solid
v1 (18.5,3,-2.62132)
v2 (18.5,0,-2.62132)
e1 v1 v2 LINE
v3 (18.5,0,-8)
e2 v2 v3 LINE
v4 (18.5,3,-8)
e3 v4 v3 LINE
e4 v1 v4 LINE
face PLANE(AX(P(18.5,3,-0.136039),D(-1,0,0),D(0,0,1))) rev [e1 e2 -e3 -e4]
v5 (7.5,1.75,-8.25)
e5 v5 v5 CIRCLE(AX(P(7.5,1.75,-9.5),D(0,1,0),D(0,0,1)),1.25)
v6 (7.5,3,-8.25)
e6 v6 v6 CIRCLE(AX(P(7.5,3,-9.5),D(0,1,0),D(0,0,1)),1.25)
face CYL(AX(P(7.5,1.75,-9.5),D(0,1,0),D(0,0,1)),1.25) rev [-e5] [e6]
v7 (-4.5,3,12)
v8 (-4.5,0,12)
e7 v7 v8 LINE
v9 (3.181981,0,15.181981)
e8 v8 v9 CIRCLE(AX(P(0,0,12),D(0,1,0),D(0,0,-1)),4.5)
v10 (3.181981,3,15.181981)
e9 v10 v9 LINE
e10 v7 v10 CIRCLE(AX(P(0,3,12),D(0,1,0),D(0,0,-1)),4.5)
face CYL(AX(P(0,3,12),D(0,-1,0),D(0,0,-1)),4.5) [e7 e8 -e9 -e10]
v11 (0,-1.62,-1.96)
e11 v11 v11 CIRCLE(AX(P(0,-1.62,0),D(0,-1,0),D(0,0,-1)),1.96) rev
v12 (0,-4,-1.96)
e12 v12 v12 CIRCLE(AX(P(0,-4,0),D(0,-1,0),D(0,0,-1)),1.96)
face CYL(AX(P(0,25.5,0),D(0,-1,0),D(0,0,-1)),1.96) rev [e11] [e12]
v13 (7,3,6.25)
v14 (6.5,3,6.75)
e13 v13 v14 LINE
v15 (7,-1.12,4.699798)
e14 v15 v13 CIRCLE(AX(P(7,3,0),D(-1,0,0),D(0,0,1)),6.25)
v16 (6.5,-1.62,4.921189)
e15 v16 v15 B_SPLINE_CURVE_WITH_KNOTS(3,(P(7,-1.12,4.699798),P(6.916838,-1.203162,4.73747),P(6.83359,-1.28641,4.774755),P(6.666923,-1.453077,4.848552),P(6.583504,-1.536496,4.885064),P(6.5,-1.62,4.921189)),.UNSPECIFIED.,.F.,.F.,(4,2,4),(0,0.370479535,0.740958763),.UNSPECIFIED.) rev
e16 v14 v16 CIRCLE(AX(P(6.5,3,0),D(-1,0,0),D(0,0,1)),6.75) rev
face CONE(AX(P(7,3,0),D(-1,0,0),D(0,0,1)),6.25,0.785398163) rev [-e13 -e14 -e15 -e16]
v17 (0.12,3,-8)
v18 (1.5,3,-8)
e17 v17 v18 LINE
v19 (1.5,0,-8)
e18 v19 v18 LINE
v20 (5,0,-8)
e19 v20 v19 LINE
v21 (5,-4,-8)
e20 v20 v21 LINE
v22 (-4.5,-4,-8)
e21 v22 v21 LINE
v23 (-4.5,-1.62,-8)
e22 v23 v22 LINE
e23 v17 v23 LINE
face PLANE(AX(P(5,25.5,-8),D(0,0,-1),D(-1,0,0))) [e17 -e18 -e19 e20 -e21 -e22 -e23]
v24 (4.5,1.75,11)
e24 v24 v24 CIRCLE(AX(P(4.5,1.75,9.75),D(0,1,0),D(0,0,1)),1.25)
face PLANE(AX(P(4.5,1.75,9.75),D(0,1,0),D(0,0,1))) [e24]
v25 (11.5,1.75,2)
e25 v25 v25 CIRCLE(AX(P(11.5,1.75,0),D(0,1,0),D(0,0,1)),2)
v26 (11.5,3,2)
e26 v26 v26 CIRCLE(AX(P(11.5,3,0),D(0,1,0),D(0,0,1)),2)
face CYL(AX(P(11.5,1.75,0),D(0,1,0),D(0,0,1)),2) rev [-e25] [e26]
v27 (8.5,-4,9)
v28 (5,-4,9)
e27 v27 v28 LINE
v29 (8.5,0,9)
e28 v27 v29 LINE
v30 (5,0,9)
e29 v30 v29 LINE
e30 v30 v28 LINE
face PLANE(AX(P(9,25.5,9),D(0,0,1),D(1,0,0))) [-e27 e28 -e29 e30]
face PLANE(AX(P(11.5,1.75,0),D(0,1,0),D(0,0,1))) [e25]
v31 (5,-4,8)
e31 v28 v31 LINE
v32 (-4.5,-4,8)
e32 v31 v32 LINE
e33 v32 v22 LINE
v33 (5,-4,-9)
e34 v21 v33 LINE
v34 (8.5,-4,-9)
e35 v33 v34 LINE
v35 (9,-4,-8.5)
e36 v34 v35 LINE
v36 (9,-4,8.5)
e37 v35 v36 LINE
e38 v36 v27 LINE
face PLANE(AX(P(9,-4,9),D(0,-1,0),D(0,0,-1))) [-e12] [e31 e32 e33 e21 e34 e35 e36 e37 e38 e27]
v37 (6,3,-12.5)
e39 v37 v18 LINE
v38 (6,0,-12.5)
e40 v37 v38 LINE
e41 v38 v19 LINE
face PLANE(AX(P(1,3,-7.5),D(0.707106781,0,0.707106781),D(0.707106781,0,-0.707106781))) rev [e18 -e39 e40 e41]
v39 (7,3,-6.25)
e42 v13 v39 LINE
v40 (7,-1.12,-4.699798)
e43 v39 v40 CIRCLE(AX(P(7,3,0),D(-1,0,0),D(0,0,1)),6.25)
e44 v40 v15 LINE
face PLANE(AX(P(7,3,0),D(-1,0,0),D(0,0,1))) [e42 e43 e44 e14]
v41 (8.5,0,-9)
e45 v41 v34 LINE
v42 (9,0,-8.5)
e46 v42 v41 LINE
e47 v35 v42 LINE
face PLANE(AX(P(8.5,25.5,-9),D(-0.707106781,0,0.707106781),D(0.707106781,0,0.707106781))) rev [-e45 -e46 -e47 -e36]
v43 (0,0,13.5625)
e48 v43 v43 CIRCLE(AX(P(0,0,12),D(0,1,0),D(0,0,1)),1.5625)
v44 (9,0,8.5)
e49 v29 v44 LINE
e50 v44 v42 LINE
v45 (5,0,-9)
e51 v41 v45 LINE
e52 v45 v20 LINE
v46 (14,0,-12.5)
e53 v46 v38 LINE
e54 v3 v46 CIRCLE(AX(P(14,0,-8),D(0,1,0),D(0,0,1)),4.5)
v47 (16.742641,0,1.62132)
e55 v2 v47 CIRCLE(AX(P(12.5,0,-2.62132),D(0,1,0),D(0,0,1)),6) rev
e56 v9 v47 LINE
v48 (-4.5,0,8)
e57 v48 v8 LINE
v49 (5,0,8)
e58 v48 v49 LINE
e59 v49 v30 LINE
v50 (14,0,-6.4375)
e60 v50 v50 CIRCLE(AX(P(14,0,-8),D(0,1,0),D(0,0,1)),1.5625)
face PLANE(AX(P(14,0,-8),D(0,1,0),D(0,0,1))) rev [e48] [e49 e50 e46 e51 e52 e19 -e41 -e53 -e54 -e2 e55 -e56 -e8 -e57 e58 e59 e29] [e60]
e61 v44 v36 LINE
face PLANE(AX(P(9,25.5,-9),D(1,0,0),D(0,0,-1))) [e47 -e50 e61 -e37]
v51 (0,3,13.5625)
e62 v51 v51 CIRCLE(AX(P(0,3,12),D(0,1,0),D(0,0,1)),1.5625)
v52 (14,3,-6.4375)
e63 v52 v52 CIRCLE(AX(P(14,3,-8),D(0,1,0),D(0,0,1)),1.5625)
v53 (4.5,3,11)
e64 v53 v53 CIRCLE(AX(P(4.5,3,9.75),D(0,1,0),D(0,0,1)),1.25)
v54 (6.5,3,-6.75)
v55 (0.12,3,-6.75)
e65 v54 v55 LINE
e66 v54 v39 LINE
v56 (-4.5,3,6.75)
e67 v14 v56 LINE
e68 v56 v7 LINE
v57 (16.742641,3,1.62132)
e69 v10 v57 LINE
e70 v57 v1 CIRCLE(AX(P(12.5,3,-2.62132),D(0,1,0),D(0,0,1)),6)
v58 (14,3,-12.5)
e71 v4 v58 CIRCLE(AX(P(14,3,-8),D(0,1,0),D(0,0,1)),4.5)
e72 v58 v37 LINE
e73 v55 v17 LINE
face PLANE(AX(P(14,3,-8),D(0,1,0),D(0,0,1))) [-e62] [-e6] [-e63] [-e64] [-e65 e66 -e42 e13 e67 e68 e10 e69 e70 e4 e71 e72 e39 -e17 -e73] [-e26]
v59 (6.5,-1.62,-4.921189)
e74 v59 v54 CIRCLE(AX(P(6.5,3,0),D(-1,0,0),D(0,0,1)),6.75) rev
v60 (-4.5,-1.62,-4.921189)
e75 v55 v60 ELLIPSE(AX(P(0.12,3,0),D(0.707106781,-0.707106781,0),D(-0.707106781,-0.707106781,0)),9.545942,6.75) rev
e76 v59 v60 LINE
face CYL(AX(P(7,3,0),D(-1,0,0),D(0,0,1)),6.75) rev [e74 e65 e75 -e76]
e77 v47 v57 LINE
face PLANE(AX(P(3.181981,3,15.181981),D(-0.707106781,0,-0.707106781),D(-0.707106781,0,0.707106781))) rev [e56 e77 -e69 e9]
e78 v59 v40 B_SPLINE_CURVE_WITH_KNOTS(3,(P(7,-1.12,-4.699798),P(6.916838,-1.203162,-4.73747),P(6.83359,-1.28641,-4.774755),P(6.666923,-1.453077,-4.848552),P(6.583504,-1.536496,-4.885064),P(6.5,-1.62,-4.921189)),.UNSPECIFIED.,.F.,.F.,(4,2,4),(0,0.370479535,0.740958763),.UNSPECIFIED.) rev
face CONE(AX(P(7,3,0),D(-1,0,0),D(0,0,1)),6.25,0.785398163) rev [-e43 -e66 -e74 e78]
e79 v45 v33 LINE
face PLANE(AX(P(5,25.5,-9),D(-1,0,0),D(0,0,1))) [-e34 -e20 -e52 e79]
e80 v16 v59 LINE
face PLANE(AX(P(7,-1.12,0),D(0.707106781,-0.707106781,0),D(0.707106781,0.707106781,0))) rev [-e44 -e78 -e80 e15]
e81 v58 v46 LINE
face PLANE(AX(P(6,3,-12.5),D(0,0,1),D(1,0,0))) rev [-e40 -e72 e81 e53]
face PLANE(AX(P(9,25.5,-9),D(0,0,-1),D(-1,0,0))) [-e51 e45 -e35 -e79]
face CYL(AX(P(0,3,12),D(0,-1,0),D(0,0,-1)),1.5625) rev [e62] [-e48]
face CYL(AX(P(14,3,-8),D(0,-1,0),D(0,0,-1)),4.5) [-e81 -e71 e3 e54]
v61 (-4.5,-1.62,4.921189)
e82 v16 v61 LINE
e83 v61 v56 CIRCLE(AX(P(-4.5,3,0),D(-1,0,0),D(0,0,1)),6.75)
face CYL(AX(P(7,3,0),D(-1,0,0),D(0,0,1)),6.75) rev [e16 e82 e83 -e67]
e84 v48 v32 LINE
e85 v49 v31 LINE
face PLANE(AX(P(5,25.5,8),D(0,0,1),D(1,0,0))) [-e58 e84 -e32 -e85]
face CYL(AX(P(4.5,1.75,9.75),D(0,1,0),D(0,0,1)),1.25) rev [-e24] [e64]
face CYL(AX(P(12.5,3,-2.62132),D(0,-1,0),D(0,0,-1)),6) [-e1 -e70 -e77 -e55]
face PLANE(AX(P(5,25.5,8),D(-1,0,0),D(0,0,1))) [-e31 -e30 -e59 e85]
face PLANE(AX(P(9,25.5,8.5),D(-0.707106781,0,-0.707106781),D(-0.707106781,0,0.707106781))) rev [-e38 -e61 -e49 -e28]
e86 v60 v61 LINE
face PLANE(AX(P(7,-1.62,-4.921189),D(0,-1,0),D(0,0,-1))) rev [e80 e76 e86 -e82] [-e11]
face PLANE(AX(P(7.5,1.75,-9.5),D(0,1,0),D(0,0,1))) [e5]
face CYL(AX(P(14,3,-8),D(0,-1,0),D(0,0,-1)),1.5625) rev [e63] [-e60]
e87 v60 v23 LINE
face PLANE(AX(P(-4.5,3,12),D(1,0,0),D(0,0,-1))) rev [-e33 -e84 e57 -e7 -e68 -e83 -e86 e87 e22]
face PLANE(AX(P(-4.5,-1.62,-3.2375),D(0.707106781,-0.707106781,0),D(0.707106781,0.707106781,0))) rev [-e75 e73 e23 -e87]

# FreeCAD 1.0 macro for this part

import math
import FreeCAD as App
import Part
import Sketcher
from FreeCAD import Vector
Q = App.Units.Quantity


def edges_at(feature, points):
    """Names of the edges that pass closest to the given points."""
    edges = feature.Shape.Edges
    near = lambda p: min(range(len(edges)), key=lambda i: edges[i].distToShape(Part.Vertex(*p))[0])
    return sorted({f"Edge{near(p) + 1}" for p in points})


def add_polygon(sketch, points):
    """Adds a closed chain of lines whose ends are joined by coincident constraints."""
    first, n = sketch.GeometryCount, len(points)
    for a, b in zip(points, points[1:] + points[:1]):
        sketch.addGeometry(Part.LineSegment(App.Vector(*a, 0), App.Vector(*b, 0)), False)
    for i in range(n):
        sketch.addConstraint(Sketcher.Constraint("Coincident", first + i, 2, first + (i + 1) % n, 1))

doc = App.newDocument("Part")
body = doc.addObject("PartDesign::Body", "Body")

sketch1 = body.newObject("Sketcher::SketchObject", "Sketch")
sketch1.AttachmentSupport = (doc.getObject("XZ_Plane"), [""])
sketch1.MapMode = "FlatFace"
sketch1.addGeometry(Part.LineSegment(Vector(3.181981, 15.181981, 0), Vector(18.5, -0.136039, 0)), False)
sketch1.addGeometry(Part.LineSegment(Vector(18.5, -0.136039, 0), Vector(18.5, -8, 0)), False)
sketch1.addGeometry(Part.ArcOfCircle(Part.Circle(Vector(14, -8, 0), Vector(0, 0, 1), 4.5), math.radians(-90), math.radians(0)), False)
sketch1.addGeometry(Part.LineSegment(Vector(14, -12.5, 0), Vector(6, -12.5, 0)), False)
sketch1.addGeometry(Part.LineSegment(Vector(6, -12.5, 0), Vector(-4.5, -2, 0)), False)
sketch1.addGeometry(Part.LineSegment(Vector(-4.5, -2, 0), Vector(-4.5, 12, 0)), False)
sketch1.addGeometry(Part.ArcOfCircle(Part.Circle(Vector(0, 12, 0), Vector(0, 0, 1), 4.5), math.radians(45), math.radians(180)), False)
sketch1.addGeometry(Part.Circle(Vector(0, 12, 0), Vector(0, 0, 1), 1.5625), False)
sketch1.addGeometry(Part.Circle(Vector(14, -8, 0), Vector(0, 0, 1), 1.5625), False)
sketch1.addConstraint(Sketcher.Constraint("Coincident", 0, 2, 1, 1))
sketch1.addConstraint(Sketcher.Constraint("Tangent", 1, 2, 2, 2))
sketch1.addConstraint(Sketcher.Constraint("Tangent", 2, 1, 3, 1))
sketch1.addConstraint(Sketcher.Constraint("Coincident", 3, 2, 4, 1))
sketch1.addConstraint(Sketcher.Constraint("Coincident", 4, 2, 5, 1))
sketch1.addConstraint(Sketcher.Constraint("Tangent", 5, 2, 6, 2))
sketch1.addConstraint(Sketcher.Constraint("Tangent", 6, 1, 0, 1))
sketch1.addConstraint(Sketcher.Constraint("Vertical", 1))
sketch1.addConstraint(Sketcher.Constraint("Horizontal", 3))
sketch1.addConstraint(Sketcher.Constraint("Vertical", 5))
sketch1.addConstraint(Sketcher.Constraint("Coincident", 7, 3, 6, 3))
sketch1.addConstraint(Sketcher.Constraint("Coincident", 8, 3, 2, 3))
sketch1.addConstraint(Sketcher.Constraint("Equal", 2, 6))
sketch1.addConstraint(Sketcher.Constraint("Equal", 7, 8))
sketch1.addConstraint(Sketcher.Constraint("PointOnObject", 6, 3, -2))
sketch1.addConstraint(Sketcher.Constraint("Parallel", 0, 4))
sketch1.addConstraint(Sketcher.Constraint("Radius", 2, Q("4.5 mm")))
sketch1.addConstraint(Sketcher.Constraint("DistanceX", 3, 2, 3, 1, Q("8 mm")))
sketch1.addConstraint(Sketcher.Constraint("DistanceY", 5, 1, 5, 2, Q("14 mm")))
sketch1.addConstraint(Sketcher.Constraint("Angle", 0, Q("-45 deg")))
sketch1.addConstraint(Sketcher.Constraint("Diameter", 7, Q("3.125 mm")))
sketch1.addConstraint(Sketcher.Constraint("DistanceX", -1, 1, 2, 3, Q("14 mm")))
sketch1.addConstraint(Sketcher.Constraint("DistanceY", 2, 3, -1, 1, Q("8 mm")))
pad1 = body.newObject("PartDesign::Pad", "Pad")
pad1.Profile = sketch1
pad1.Length = 3
pad1.Reversed = True

sketch2 = body.newObject("Sketcher::SketchObject", "Sketch001")
sketch2.AttachmentSupport = (doc.getObject("XZ_Plane"), [""])
sketch2.MapMode = "FlatFace"
add_polygon(sketch2, [(5, -9), (9, -9), (9, 9), (5, 9), (5, 8), (-4.5, 8), (-4.5, -8), (5, -8)])
sketch2.addGeometry(Part.Circle(Vector(0, 0, 0), Vector(0, 0, 1), 1.96), False)
sketch2.addConstraint(Sketcher.Constraint("Horizontal", 0))
sketch2.addConstraint(Sketcher.Constraint("Vertical", 1))
sketch2.addConstraint(Sketcher.Constraint("Horizontal", 2))
sketch2.addConstraint(Sketcher.Constraint("Vertical", 3))
sketch2.addConstraint(Sketcher.Constraint("Horizontal", 4))
sketch2.addConstraint(Sketcher.Constraint("Vertical", 5))
sketch2.addConstraint(Sketcher.Constraint("Horizontal", 6))
sketch2.addConstraint(Sketcher.Constraint("Vertical", 7))
sketch2.addConstraint(Sketcher.Constraint("Coincident", 8, 3, -1, 1))
sketch2.addConstraint(Sketcher.Constraint("Symmetric", 3, 2, 6, 2, -1))
sketch2.addConstraint(Sketcher.Constraint("Equal", 3, 7))
sketch2.addConstraint(Sketcher.Constraint("Diameter", 8, Q("3.92 mm")))
sketch2.addConstraint(Sketcher.Constraint("DistanceX", 0, 1, 0, 2, Q("4 mm")))
sketch2.addConstraint(Sketcher.Constraint("DistanceY", 1, 1, 1, 2, Q("18 mm")))
sketch2.addConstraint(Sketcher.Constraint("DistanceY", 3, 2, 3, 1, Q("1 mm")))
sketch2.addConstraint(Sketcher.Constraint("DistanceX", 4, 2, 4, 1, Q("9.5 mm")))
sketch2.addConstraint(Sketcher.Constraint("DistanceX", -1, 1, 0, 2, Q("9 mm")))
pad2 = body.newObject("PartDesign::Pad", "Pad001")
pad2.Profile = sketch2
pad2.Type = "TwoLengths"
pad2.Length = 4
pad2.Length2 = 3

sketch3 = body.newObject("Sketcher::SketchObject", "Sketch002")
sketch3.AttachmentSupport = (doc.getObject("YZ_Plane"), [""])
sketch3.MapMode = "FlatFace"
sketch3.AttachmentOffset = App.Placement(Vector(0, 0, -4.5), App.Rotation())
sketch3.addGeometry(Part.LineSegment(Vector(-1.62, -4.921189, 0), Vector(-1.62, 4.921189, 0)), False)
sketch3.addGeometry(Part.ArcOfCircle(Part.Circle(Vector(3, 0, 0), Vector(0, 0, 1), 6.75), math.radians(90), math.radians(133.191931)), False)
sketch3.addGeometry(Part.LineSegment(Vector(3, 6.75, 0), Vector(3, -6.75, 0)), False)
sketch3.addGeometry(Part.ArcOfCircle(Part.Circle(Vector(3, 0, 0), Vector(0, 0, 1), 6.75), math.radians(-133.191931), math.radians(-90)), False)
sketch3.addConstraint(Sketcher.Constraint("Coincident", 0, 2, 1, 2))
sketch3.addConstraint(Sketcher.Constraint("Coincident", 1, 1, 2, 1))
sketch3.addConstraint(Sketcher.Constraint("Coincident", 2, 2, 3, 2))
sketch3.addConstraint(Sketcher.Constraint("Coincident", 3, 1, 0, 1))
sketch3.addConstraint(Sketcher.Constraint("Vertical", 0))
sketch3.addConstraint(Sketcher.Constraint("Vertical", 2))
sketch3.addConstraint(Sketcher.Constraint("Coincident", 3, 3, 1, 3))
sketch3.addConstraint(Sketcher.Constraint("Equal", 1, 3))
sketch3.addConstraint(Sketcher.Constraint("PointOnObject", 1, 3, -1))
sketch3.addConstraint(Sketcher.Constraint("Vertical", 3, 3, 1, 1))
sketch3.addConstraint(Sketcher.Constraint("Radius", 1, Q("6.75 mm")))
sketch3.addConstraint(Sketcher.Constraint("DistanceX", -1, 1, 1, 3, Q("3 mm")))
sketch3.addConstraint(Sketcher.Constraint("DistanceX", 0, 2, -1, 1, Q("1.62 mm")))
pocket1 = body.newObject("PartDesign::Pocket", "Pocket")
pocket1.Profile = sketch3
pocket1.Length = 11.5
pocket1.Reversed = True
doc.recompute()

chamfer = body.newObject("PartDesign::Chamfer", "Chamfer")
chamfer.Base = (pocket1, edges_at(pocket1, [
    (9, -2, 9),
    (9, -2, -9),
    (7, -1.62, 0),
    (7, 0.516, -6.276),
    (7, 0.516, 6.276),
]))
chamfer.Size = 0.5

sketch4 = body.newObject("Sketcher::SketchObject", "Sketch003")
sketch4.AttachmentSupport = (doc.getObject("XY_Plane"), [""])
sketch4.MapMode = "FlatFace"
sketch4.AttachmentOffset = App.Placement(Vector(0, 0, -8), App.Rotation())
add_polygon(sketch4, [(0.12, 3), (-4.5, -1.62), (-4.5, 3)])
sketch4.addConstraint(Sketcher.Constraint("Vertical", 1))
sketch4.addConstraint(Sketcher.Constraint("Horizontal", 2))
sketch4.addConstraint(Sketcher.Constraint("Equal", 2, 1))
sketch4.addConstraint(Sketcher.Constraint("DistanceY", -1, 1, 1, 2, Q("3 mm")))
sketch4.addConstraint(Sketcher.Constraint("DistanceX", 2, 1, 2, 2, Q("4.62 mm")))
sketch4.addConstraint(Sketcher.Constraint("DistanceX", 0, 2, -1, 1, Q("4.5 mm")))
pocket2 = body.newObject("PartDesign::Pocket", "Pocket001")
pocket2.Profile = sketch4
pocket2.Length = 4.7625
pocket2.Reversed = True
doc.recompute()

fillet = body.newObject("PartDesign::Fillet", "Fillet")
fillet.Base = (pocket2, edges_at(pocket2, [(18.5, 1.5, -0.136)]))
fillet.Radius = 6

sketch5 = body.newObject("Sketcher::SketchObject", "Sketch004")
sketch5.AttachmentSupport = (doc.getObject("XZ_Plane"), [""])
sketch5.MapMode = "FlatFace"
sketch5.AttachmentOffset = App.Placement(Vector(0, 0, -3), App.Rotation())
sketch5.addGeometry(Part.Circle(Vector(11.5, 0, 0), Vector(0, 0, 1), 2), False)
sketch5.addGeometry(Part.Circle(Vector(4.5, 9.75, 0), Vector(0, 0, 1), 1.25), False)
sketch5.addGeometry(Part.Circle(Vector(7.5, -9.5, 0), Vector(0, 0, 1), 1.25), False)
sketch5.addConstraint(Sketcher.Constraint("Equal", 1, 2))
sketch5.addConstraint(Sketcher.Constraint("PointOnObject", 0, 3, -1))
sketch5.addConstraint(Sketcher.Constraint("Diameter", 0, Q("4 mm")))
sketch5.addConstraint(Sketcher.Constraint("Diameter", 1, Q("2.5 mm")))
sketch5.addConstraint(Sketcher.Constraint("DistanceX", 1, 3, 0, 3, Q("7 mm")))
sketch5.addConstraint(Sketcher.Constraint("DistanceX", 2, 3, 0, 3, Q("4 mm")))
sketch5.addConstraint(Sketcher.Constraint("DistanceX", -1, 1, 0, 3, Q("11.5 mm")))
sketch5.addConstraint(Sketcher.Constraint("DistanceY", 2, 3, -1, 1, Q("9.5 mm")))
sketch5.addConstraint(Sketcher.Constraint("DistanceY", -1, 1, 1, 3, Q("9.75 mm")))
pocket3 = body.newObject("PartDesign::Pocket", "Pocket002")
pocket3.Profile = sketch5
pocket3.Length = 1.25
pocket3.Reversed = True

doc.recompute()
